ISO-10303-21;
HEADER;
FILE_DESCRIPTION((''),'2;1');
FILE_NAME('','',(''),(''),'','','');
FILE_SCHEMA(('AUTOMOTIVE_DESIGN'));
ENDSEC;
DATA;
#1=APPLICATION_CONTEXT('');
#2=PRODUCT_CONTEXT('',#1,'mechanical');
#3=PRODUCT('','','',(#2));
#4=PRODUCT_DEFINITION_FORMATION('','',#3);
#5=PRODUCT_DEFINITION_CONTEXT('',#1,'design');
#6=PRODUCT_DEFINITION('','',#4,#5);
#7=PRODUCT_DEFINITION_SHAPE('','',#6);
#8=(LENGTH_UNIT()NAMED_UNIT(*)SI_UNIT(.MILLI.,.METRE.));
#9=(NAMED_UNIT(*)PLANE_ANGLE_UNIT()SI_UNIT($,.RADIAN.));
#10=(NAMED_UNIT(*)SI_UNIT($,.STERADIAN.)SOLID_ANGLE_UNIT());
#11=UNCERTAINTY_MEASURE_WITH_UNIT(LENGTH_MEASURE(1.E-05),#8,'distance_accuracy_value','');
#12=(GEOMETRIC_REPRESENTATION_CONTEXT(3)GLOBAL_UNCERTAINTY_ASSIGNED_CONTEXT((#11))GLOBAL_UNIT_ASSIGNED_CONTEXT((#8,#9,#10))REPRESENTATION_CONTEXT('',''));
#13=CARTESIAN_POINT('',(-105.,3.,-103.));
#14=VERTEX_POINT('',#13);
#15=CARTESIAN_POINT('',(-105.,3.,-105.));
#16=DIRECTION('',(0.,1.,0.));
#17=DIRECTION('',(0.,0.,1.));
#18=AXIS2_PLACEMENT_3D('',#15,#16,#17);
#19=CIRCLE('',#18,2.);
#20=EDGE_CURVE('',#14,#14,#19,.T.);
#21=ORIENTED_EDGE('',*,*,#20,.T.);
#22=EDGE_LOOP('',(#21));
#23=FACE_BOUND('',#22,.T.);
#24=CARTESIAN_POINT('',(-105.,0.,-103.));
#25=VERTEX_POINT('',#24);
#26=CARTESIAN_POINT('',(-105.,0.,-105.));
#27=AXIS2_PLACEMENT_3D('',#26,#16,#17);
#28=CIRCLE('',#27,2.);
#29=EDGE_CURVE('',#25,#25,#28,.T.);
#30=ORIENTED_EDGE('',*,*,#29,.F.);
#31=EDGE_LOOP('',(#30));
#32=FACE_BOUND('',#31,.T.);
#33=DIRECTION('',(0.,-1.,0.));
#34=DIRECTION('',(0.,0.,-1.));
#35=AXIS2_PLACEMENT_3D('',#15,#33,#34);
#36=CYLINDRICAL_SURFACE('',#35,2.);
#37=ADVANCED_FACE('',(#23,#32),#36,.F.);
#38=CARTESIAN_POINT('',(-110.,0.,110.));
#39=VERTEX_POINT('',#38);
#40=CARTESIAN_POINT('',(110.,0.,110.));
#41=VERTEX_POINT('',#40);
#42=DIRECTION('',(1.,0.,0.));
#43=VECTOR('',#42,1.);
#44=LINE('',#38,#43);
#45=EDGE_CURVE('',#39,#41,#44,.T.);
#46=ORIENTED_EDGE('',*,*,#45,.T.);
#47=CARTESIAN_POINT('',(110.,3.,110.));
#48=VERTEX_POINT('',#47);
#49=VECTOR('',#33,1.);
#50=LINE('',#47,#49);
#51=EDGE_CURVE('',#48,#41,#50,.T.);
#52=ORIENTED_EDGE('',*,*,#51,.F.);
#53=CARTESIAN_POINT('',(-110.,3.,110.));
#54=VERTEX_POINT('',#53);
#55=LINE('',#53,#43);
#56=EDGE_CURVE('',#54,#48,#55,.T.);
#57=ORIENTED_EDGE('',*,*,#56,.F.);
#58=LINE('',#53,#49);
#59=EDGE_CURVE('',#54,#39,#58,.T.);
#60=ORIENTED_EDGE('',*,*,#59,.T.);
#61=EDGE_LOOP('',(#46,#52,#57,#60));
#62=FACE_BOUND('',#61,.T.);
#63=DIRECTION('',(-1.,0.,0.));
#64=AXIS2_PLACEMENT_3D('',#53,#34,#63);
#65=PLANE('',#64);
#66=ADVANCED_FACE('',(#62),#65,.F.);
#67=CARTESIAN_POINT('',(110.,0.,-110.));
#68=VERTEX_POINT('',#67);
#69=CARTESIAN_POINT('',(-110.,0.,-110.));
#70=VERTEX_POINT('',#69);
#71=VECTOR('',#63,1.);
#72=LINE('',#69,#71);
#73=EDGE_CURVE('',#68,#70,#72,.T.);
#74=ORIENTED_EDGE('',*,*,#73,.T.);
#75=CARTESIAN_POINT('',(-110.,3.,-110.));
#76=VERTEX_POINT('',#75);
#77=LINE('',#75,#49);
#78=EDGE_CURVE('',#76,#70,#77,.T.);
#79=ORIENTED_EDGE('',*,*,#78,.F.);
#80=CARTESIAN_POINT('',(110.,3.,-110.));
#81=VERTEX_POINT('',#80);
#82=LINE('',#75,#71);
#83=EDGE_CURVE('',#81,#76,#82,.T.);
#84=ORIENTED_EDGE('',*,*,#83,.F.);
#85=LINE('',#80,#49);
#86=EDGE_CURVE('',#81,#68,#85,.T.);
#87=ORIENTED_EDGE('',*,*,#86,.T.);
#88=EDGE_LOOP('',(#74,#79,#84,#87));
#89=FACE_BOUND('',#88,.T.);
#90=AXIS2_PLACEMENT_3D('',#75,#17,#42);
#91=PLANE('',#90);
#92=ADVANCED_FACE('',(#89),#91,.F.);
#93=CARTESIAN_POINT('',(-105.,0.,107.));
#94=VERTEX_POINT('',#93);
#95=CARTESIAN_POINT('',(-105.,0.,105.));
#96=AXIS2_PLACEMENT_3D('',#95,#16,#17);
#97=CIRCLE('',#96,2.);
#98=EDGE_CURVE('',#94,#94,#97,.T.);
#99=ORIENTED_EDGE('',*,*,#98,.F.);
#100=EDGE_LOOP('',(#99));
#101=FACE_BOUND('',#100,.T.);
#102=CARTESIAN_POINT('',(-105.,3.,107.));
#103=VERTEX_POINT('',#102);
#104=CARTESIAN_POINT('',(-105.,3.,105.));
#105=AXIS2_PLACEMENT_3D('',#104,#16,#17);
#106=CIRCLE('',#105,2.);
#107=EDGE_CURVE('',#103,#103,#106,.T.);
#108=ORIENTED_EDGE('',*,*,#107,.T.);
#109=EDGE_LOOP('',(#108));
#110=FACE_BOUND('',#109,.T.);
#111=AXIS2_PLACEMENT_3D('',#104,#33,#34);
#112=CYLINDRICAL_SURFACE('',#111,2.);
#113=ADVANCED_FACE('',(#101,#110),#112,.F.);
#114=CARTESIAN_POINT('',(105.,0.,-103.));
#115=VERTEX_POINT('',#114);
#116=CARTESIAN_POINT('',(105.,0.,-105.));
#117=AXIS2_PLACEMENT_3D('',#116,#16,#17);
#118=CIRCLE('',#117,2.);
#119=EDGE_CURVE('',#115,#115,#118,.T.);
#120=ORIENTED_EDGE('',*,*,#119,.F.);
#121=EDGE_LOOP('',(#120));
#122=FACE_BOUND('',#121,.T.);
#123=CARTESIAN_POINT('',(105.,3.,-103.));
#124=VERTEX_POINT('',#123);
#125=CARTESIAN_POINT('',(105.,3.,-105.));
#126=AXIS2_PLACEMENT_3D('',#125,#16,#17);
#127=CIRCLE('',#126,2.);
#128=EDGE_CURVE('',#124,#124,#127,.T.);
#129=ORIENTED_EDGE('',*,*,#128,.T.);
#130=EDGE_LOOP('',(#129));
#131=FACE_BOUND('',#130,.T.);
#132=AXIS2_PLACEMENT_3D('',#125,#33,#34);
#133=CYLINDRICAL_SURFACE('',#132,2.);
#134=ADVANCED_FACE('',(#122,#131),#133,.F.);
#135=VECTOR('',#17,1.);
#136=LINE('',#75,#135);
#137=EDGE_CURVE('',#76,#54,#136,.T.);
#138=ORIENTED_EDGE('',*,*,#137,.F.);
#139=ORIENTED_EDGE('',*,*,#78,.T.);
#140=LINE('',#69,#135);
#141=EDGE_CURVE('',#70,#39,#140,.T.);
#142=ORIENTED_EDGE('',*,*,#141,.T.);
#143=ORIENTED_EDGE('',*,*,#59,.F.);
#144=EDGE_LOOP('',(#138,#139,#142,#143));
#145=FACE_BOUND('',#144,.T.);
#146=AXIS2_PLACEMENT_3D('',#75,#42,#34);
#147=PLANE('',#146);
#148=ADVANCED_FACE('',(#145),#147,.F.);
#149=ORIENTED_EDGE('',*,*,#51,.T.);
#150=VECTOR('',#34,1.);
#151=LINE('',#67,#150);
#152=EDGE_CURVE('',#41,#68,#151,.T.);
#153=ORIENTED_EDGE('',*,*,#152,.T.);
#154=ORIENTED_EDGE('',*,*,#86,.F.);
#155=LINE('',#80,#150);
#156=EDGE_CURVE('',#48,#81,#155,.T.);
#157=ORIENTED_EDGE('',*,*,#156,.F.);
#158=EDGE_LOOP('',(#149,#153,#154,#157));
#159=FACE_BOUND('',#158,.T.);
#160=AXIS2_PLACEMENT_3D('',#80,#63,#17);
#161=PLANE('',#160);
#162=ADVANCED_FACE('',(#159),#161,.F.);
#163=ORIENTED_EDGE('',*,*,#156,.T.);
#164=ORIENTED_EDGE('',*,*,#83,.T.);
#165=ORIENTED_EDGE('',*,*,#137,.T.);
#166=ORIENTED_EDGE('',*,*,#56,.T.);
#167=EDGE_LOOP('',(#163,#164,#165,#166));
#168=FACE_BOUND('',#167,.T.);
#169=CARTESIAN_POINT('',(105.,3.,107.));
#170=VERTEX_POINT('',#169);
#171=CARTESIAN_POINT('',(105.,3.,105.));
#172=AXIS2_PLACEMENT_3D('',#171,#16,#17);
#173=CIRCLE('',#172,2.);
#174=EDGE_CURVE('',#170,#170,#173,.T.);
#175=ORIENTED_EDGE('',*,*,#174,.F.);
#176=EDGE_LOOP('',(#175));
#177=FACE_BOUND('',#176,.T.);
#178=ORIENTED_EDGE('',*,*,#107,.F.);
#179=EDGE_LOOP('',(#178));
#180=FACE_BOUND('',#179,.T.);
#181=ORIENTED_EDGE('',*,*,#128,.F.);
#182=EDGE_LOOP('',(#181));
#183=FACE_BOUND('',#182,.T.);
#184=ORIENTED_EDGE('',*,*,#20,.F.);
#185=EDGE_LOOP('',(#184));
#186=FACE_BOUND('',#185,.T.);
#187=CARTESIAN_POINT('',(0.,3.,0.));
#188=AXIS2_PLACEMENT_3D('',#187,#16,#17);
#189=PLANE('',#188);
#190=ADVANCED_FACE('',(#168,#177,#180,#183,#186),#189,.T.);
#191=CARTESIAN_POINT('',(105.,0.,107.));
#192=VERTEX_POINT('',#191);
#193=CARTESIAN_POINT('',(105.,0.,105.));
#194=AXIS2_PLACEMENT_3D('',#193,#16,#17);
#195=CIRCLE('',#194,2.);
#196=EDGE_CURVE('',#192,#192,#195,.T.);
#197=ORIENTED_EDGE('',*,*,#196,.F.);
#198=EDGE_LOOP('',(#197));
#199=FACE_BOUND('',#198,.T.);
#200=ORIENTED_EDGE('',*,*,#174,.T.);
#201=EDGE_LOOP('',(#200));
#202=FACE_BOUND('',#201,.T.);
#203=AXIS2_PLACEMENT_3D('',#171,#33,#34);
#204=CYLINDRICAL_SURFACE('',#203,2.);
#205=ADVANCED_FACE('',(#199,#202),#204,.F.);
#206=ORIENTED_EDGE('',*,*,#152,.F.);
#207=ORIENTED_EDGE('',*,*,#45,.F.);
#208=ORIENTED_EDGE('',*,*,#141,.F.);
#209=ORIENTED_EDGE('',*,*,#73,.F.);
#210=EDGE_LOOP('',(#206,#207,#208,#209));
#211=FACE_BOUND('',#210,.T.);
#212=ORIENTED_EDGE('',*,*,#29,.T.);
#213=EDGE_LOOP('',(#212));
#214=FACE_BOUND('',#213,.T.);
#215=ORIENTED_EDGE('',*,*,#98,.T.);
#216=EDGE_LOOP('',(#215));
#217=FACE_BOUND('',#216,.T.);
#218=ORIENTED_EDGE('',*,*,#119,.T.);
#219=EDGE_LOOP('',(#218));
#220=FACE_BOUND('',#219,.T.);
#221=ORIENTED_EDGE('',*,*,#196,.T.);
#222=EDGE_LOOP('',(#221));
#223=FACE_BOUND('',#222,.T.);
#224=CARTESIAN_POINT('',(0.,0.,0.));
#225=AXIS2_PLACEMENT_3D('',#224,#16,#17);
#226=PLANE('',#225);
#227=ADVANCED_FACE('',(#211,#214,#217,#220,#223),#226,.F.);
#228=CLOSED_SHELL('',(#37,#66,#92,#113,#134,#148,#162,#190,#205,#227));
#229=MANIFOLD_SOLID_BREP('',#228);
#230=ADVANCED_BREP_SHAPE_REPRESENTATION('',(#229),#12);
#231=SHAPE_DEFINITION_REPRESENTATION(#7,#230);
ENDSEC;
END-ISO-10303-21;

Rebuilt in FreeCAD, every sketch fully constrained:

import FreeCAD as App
import Part
import Sketcher


def add_polygon(sketch, points):
    """Adds a closed chain of lines whose ends are joined by coincident constraints."""
    first, n = sketch.GeometryCount, len(points)
    for a, b in zip(points, points[1:] + points[:1]):
        sketch.addGeometry(Part.LineSegment(App.Vector(*a, 0), App.Vector(*b, 0)), False)
    for i in range(n):
        sketch.addConstraint(Sketcher.Constraint("Coincident", first + i, 2, first + (i + 1) % n, 1))

doc = App.newDocument("Part")
body = doc.addObject("PartDesign::Body", "Body")

# Sketch on XZ plane
sketch1 = body.newObject("Sketcher::SketchObject", "Sketch")
sketch1.AttachmentSupport = (doc.getObject("XZ_Plane"), [""])
sketch1.MapMode = "FlatFace"
add_polygon(sketch1, [(-110, -110), (-110, 110), (110, 110), (110, -110)])  # lines 0-3
sketch1.addGeometry(Part.Circle(App.Vector(-105, 105, 0), App.Vector(0, 0, 1), 2), False)  # 4
sketch1.addGeometry(Part.Circle(App.Vector(105, 105, 0), App.Vector(0, 0, 1), 2), False)  # 5
sketch1.addGeometry(Part.Circle(App.Vector(-105, -105, 0), App.Vector(0, 0, 1), 2), False)  # 6
sketch1.addGeometry(Part.Circle(App.Vector(105, -105, 0), App.Vector(0, 0, 1), 2), False)  # 7
sketch1.addConstraint([
    Sketcher.Constraint("Vertical", 0),
    Sketcher.Constraint("Horizontal", 1),
    Sketcher.Constraint("Vertical", 2),
    Sketcher.Constraint("Horizontal", 3),
    Sketcher.Constraint("Equal", 4, 5),
    Sketcher.Constraint("Equal", 5, 6),
    Sketcher.Constraint("Equal", 6, 7),
    Sketcher.Constraint("Symmetric", 5, 3, 6, 3, -1, 1),
    Sketcher.Constraint("Symmetric", 4, 3, 7, 3, -1, 1),
    Sketcher.Constraint("Symmetric", 0, 2, 2, 2, -1, 1),
    Sketcher.Constraint("Symmetric", 4, 3, 5, 3, -2),
    Sketcher.Constraint("Equal", 3, 0),
    Sketcher.Constraint("Diameter", 4, 4.0),
    Sketcher.Constraint("DistanceX", 1, 1, 1, 2, 220.0),
    Sketcher.Constraint("DistanceX", 4, 3, -1, 1, 105.0),
    Sketcher.Constraint("DistanceY", -1, 1, 4, 3, 105.0),
])
pad1 = body.newObject("PartDesign::Pad", "Pad")
pad1.Profile = sketch1
pad1.Length = 3
pad1.Reversed = True

doc.recompute()
